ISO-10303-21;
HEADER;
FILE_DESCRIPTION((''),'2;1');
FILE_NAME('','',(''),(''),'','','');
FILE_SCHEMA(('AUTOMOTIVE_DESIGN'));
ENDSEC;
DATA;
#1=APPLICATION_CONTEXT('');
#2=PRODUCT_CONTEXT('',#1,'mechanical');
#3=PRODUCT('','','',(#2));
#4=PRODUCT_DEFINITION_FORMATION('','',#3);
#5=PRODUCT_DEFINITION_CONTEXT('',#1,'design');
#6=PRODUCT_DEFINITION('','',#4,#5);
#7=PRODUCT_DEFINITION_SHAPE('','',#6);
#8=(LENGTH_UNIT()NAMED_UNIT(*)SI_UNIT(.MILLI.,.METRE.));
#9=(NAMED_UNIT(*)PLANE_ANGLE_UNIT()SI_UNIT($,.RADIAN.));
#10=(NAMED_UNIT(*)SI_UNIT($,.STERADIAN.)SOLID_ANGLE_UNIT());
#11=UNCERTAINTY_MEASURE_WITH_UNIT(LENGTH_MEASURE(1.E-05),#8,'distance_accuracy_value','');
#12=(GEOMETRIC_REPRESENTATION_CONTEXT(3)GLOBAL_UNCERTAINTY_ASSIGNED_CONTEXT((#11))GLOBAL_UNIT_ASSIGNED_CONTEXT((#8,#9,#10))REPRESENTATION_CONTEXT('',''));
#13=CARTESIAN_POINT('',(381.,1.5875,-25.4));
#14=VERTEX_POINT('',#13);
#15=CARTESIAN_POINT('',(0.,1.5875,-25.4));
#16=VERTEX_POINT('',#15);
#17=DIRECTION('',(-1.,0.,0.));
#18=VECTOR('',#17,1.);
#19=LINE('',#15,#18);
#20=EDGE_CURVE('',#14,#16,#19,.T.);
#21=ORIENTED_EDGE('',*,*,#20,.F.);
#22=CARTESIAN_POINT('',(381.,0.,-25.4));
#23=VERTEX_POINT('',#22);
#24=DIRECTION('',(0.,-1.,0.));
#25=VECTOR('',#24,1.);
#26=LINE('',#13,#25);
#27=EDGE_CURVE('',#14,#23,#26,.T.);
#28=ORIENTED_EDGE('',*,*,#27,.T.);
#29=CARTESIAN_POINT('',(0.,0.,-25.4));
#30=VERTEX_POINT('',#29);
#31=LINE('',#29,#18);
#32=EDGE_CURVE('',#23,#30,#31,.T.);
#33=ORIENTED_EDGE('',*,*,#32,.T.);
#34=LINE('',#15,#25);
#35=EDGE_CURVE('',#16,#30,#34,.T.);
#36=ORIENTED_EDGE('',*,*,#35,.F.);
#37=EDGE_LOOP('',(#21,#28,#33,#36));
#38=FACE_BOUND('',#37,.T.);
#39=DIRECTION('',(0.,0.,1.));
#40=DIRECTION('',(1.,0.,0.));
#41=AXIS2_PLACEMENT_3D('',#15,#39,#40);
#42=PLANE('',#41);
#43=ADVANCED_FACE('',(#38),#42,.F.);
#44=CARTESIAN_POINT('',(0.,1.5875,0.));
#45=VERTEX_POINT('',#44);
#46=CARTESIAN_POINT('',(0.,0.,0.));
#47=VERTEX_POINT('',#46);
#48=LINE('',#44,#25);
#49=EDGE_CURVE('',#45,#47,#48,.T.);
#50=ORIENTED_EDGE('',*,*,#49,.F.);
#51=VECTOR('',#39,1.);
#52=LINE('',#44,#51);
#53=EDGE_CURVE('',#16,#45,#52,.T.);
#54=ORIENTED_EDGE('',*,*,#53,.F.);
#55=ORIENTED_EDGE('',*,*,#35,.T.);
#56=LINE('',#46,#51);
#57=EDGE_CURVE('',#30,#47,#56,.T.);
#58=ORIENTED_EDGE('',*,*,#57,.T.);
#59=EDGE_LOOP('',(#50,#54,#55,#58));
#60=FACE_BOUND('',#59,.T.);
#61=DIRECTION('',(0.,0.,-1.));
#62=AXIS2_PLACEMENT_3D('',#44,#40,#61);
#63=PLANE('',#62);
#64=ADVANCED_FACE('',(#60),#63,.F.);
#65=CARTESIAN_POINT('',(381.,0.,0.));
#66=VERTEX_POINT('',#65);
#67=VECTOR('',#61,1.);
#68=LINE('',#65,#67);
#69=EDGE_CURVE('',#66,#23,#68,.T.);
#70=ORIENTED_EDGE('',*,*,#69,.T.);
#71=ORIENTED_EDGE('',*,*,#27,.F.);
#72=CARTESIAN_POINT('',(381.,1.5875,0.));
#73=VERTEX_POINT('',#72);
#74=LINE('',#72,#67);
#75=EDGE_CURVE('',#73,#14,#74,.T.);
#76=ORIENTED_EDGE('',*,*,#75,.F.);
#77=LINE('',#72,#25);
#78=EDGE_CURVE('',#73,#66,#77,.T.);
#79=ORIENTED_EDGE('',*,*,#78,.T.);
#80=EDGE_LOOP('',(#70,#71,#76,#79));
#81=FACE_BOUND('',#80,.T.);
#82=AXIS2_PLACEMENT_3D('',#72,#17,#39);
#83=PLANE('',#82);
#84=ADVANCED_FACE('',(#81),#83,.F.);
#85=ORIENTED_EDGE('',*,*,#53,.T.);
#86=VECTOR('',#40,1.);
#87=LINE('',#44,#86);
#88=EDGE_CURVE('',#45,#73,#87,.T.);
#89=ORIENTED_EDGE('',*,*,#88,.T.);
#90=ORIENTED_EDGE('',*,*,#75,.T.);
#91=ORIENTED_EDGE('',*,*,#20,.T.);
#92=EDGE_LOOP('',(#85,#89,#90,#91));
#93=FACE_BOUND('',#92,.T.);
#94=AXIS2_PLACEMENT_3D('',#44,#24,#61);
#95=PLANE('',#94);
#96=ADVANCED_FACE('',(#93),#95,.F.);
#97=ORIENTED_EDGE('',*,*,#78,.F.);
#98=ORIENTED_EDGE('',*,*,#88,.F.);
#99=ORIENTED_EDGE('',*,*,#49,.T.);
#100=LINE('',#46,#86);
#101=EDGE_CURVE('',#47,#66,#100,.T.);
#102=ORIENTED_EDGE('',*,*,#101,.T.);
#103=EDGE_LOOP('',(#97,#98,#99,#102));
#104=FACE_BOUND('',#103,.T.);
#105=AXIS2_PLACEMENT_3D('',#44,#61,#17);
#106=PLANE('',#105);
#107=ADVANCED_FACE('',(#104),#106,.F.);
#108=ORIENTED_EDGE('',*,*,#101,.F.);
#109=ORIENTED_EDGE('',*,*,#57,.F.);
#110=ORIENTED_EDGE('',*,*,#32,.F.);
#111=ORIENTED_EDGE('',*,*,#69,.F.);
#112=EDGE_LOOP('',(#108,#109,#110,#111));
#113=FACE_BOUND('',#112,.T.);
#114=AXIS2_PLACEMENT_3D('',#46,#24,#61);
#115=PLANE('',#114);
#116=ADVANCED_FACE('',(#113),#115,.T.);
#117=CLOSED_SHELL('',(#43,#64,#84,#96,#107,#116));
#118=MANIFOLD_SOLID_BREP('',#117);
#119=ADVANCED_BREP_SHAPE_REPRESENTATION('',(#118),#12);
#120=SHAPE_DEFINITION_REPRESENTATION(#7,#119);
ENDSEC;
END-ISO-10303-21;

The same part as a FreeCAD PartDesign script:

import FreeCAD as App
import Part
import Sketcher

V = App.Vector
Q = App.Units.Quantity


def add_polygon(sketch, points):
    """Adds a closed chain of lines whose ends are joined by coincident constraints."""
    first, n = sketch.GeometryCount, len(points)
    for a, b in zip(points, points[1:] + points[:1]):
        sketch.addGeometry(Part.LineSegment(App.Vector(*a, 0), App.Vector(*b, 0)), False)
    for i in range(n):
        sketch.addConstraint(Sketcher.Constraint("Coincident", first + i, 2, first + (i + 1) % n, 1))

doc = App.newDocument("Part")
params = doc.addObject("Spreadsheet::Sheet", "Params")
for row, (alias, value) in enumerate([
    ("sketch1_width", "15 in"),
    ("sketch1_height", "1 in"),
    ("pad1_length", "0.0625 in"),
], start=1):
    params.set(f"A{row}", alias)
    params.set(f"B{row}", "=" + value)
    params.setAlias(f"B{row}", alias)

body = doc.addObject("PartDesign::Body", "Body")

# Sketch on XZ plane
sketch1 = body.newObject("Sketcher::SketchObject", "Sketch")
sketch1.AttachmentSupport = (doc.getObject("XZ_Plane"), [""])
sketch1.MapMode = "FlatFace"
add_polygon(sketch1, [(0, -25), (0, 0), (381, 0), (381, -25)])  # lines 0-3
sketch1.addConstraint([
    Sketcher.Constraint("Vertical", 0),
    Sketcher.Constraint("Horizontal", 1),
    Sketcher.Constraint("Vertical", 2),
    Sketcher.Constraint("Horizontal", 3),
    Sketcher.Constraint("Coincident", 0, 2, -1, 1),
    Sketcher.Constraint("DistanceX", 1, 1, 1, 2, Q("15 in")),
    Sketcher.Constraint("DistanceY", 0, 1, 0, 2, Q("1 in")),
])
sketch1.setExpression("Constraints[9]", "Params.sketch1_width")
sketch1.setExpression("Constraints[10]", "Params.sketch1_height")
pad1 = body.newObject("PartDesign::Pad", "Pad")
pad1.Profile = sketch1
pad1.setExpression("Length", "Params.pad1_length")
pad1.Reversed = True

doc.recompute()
